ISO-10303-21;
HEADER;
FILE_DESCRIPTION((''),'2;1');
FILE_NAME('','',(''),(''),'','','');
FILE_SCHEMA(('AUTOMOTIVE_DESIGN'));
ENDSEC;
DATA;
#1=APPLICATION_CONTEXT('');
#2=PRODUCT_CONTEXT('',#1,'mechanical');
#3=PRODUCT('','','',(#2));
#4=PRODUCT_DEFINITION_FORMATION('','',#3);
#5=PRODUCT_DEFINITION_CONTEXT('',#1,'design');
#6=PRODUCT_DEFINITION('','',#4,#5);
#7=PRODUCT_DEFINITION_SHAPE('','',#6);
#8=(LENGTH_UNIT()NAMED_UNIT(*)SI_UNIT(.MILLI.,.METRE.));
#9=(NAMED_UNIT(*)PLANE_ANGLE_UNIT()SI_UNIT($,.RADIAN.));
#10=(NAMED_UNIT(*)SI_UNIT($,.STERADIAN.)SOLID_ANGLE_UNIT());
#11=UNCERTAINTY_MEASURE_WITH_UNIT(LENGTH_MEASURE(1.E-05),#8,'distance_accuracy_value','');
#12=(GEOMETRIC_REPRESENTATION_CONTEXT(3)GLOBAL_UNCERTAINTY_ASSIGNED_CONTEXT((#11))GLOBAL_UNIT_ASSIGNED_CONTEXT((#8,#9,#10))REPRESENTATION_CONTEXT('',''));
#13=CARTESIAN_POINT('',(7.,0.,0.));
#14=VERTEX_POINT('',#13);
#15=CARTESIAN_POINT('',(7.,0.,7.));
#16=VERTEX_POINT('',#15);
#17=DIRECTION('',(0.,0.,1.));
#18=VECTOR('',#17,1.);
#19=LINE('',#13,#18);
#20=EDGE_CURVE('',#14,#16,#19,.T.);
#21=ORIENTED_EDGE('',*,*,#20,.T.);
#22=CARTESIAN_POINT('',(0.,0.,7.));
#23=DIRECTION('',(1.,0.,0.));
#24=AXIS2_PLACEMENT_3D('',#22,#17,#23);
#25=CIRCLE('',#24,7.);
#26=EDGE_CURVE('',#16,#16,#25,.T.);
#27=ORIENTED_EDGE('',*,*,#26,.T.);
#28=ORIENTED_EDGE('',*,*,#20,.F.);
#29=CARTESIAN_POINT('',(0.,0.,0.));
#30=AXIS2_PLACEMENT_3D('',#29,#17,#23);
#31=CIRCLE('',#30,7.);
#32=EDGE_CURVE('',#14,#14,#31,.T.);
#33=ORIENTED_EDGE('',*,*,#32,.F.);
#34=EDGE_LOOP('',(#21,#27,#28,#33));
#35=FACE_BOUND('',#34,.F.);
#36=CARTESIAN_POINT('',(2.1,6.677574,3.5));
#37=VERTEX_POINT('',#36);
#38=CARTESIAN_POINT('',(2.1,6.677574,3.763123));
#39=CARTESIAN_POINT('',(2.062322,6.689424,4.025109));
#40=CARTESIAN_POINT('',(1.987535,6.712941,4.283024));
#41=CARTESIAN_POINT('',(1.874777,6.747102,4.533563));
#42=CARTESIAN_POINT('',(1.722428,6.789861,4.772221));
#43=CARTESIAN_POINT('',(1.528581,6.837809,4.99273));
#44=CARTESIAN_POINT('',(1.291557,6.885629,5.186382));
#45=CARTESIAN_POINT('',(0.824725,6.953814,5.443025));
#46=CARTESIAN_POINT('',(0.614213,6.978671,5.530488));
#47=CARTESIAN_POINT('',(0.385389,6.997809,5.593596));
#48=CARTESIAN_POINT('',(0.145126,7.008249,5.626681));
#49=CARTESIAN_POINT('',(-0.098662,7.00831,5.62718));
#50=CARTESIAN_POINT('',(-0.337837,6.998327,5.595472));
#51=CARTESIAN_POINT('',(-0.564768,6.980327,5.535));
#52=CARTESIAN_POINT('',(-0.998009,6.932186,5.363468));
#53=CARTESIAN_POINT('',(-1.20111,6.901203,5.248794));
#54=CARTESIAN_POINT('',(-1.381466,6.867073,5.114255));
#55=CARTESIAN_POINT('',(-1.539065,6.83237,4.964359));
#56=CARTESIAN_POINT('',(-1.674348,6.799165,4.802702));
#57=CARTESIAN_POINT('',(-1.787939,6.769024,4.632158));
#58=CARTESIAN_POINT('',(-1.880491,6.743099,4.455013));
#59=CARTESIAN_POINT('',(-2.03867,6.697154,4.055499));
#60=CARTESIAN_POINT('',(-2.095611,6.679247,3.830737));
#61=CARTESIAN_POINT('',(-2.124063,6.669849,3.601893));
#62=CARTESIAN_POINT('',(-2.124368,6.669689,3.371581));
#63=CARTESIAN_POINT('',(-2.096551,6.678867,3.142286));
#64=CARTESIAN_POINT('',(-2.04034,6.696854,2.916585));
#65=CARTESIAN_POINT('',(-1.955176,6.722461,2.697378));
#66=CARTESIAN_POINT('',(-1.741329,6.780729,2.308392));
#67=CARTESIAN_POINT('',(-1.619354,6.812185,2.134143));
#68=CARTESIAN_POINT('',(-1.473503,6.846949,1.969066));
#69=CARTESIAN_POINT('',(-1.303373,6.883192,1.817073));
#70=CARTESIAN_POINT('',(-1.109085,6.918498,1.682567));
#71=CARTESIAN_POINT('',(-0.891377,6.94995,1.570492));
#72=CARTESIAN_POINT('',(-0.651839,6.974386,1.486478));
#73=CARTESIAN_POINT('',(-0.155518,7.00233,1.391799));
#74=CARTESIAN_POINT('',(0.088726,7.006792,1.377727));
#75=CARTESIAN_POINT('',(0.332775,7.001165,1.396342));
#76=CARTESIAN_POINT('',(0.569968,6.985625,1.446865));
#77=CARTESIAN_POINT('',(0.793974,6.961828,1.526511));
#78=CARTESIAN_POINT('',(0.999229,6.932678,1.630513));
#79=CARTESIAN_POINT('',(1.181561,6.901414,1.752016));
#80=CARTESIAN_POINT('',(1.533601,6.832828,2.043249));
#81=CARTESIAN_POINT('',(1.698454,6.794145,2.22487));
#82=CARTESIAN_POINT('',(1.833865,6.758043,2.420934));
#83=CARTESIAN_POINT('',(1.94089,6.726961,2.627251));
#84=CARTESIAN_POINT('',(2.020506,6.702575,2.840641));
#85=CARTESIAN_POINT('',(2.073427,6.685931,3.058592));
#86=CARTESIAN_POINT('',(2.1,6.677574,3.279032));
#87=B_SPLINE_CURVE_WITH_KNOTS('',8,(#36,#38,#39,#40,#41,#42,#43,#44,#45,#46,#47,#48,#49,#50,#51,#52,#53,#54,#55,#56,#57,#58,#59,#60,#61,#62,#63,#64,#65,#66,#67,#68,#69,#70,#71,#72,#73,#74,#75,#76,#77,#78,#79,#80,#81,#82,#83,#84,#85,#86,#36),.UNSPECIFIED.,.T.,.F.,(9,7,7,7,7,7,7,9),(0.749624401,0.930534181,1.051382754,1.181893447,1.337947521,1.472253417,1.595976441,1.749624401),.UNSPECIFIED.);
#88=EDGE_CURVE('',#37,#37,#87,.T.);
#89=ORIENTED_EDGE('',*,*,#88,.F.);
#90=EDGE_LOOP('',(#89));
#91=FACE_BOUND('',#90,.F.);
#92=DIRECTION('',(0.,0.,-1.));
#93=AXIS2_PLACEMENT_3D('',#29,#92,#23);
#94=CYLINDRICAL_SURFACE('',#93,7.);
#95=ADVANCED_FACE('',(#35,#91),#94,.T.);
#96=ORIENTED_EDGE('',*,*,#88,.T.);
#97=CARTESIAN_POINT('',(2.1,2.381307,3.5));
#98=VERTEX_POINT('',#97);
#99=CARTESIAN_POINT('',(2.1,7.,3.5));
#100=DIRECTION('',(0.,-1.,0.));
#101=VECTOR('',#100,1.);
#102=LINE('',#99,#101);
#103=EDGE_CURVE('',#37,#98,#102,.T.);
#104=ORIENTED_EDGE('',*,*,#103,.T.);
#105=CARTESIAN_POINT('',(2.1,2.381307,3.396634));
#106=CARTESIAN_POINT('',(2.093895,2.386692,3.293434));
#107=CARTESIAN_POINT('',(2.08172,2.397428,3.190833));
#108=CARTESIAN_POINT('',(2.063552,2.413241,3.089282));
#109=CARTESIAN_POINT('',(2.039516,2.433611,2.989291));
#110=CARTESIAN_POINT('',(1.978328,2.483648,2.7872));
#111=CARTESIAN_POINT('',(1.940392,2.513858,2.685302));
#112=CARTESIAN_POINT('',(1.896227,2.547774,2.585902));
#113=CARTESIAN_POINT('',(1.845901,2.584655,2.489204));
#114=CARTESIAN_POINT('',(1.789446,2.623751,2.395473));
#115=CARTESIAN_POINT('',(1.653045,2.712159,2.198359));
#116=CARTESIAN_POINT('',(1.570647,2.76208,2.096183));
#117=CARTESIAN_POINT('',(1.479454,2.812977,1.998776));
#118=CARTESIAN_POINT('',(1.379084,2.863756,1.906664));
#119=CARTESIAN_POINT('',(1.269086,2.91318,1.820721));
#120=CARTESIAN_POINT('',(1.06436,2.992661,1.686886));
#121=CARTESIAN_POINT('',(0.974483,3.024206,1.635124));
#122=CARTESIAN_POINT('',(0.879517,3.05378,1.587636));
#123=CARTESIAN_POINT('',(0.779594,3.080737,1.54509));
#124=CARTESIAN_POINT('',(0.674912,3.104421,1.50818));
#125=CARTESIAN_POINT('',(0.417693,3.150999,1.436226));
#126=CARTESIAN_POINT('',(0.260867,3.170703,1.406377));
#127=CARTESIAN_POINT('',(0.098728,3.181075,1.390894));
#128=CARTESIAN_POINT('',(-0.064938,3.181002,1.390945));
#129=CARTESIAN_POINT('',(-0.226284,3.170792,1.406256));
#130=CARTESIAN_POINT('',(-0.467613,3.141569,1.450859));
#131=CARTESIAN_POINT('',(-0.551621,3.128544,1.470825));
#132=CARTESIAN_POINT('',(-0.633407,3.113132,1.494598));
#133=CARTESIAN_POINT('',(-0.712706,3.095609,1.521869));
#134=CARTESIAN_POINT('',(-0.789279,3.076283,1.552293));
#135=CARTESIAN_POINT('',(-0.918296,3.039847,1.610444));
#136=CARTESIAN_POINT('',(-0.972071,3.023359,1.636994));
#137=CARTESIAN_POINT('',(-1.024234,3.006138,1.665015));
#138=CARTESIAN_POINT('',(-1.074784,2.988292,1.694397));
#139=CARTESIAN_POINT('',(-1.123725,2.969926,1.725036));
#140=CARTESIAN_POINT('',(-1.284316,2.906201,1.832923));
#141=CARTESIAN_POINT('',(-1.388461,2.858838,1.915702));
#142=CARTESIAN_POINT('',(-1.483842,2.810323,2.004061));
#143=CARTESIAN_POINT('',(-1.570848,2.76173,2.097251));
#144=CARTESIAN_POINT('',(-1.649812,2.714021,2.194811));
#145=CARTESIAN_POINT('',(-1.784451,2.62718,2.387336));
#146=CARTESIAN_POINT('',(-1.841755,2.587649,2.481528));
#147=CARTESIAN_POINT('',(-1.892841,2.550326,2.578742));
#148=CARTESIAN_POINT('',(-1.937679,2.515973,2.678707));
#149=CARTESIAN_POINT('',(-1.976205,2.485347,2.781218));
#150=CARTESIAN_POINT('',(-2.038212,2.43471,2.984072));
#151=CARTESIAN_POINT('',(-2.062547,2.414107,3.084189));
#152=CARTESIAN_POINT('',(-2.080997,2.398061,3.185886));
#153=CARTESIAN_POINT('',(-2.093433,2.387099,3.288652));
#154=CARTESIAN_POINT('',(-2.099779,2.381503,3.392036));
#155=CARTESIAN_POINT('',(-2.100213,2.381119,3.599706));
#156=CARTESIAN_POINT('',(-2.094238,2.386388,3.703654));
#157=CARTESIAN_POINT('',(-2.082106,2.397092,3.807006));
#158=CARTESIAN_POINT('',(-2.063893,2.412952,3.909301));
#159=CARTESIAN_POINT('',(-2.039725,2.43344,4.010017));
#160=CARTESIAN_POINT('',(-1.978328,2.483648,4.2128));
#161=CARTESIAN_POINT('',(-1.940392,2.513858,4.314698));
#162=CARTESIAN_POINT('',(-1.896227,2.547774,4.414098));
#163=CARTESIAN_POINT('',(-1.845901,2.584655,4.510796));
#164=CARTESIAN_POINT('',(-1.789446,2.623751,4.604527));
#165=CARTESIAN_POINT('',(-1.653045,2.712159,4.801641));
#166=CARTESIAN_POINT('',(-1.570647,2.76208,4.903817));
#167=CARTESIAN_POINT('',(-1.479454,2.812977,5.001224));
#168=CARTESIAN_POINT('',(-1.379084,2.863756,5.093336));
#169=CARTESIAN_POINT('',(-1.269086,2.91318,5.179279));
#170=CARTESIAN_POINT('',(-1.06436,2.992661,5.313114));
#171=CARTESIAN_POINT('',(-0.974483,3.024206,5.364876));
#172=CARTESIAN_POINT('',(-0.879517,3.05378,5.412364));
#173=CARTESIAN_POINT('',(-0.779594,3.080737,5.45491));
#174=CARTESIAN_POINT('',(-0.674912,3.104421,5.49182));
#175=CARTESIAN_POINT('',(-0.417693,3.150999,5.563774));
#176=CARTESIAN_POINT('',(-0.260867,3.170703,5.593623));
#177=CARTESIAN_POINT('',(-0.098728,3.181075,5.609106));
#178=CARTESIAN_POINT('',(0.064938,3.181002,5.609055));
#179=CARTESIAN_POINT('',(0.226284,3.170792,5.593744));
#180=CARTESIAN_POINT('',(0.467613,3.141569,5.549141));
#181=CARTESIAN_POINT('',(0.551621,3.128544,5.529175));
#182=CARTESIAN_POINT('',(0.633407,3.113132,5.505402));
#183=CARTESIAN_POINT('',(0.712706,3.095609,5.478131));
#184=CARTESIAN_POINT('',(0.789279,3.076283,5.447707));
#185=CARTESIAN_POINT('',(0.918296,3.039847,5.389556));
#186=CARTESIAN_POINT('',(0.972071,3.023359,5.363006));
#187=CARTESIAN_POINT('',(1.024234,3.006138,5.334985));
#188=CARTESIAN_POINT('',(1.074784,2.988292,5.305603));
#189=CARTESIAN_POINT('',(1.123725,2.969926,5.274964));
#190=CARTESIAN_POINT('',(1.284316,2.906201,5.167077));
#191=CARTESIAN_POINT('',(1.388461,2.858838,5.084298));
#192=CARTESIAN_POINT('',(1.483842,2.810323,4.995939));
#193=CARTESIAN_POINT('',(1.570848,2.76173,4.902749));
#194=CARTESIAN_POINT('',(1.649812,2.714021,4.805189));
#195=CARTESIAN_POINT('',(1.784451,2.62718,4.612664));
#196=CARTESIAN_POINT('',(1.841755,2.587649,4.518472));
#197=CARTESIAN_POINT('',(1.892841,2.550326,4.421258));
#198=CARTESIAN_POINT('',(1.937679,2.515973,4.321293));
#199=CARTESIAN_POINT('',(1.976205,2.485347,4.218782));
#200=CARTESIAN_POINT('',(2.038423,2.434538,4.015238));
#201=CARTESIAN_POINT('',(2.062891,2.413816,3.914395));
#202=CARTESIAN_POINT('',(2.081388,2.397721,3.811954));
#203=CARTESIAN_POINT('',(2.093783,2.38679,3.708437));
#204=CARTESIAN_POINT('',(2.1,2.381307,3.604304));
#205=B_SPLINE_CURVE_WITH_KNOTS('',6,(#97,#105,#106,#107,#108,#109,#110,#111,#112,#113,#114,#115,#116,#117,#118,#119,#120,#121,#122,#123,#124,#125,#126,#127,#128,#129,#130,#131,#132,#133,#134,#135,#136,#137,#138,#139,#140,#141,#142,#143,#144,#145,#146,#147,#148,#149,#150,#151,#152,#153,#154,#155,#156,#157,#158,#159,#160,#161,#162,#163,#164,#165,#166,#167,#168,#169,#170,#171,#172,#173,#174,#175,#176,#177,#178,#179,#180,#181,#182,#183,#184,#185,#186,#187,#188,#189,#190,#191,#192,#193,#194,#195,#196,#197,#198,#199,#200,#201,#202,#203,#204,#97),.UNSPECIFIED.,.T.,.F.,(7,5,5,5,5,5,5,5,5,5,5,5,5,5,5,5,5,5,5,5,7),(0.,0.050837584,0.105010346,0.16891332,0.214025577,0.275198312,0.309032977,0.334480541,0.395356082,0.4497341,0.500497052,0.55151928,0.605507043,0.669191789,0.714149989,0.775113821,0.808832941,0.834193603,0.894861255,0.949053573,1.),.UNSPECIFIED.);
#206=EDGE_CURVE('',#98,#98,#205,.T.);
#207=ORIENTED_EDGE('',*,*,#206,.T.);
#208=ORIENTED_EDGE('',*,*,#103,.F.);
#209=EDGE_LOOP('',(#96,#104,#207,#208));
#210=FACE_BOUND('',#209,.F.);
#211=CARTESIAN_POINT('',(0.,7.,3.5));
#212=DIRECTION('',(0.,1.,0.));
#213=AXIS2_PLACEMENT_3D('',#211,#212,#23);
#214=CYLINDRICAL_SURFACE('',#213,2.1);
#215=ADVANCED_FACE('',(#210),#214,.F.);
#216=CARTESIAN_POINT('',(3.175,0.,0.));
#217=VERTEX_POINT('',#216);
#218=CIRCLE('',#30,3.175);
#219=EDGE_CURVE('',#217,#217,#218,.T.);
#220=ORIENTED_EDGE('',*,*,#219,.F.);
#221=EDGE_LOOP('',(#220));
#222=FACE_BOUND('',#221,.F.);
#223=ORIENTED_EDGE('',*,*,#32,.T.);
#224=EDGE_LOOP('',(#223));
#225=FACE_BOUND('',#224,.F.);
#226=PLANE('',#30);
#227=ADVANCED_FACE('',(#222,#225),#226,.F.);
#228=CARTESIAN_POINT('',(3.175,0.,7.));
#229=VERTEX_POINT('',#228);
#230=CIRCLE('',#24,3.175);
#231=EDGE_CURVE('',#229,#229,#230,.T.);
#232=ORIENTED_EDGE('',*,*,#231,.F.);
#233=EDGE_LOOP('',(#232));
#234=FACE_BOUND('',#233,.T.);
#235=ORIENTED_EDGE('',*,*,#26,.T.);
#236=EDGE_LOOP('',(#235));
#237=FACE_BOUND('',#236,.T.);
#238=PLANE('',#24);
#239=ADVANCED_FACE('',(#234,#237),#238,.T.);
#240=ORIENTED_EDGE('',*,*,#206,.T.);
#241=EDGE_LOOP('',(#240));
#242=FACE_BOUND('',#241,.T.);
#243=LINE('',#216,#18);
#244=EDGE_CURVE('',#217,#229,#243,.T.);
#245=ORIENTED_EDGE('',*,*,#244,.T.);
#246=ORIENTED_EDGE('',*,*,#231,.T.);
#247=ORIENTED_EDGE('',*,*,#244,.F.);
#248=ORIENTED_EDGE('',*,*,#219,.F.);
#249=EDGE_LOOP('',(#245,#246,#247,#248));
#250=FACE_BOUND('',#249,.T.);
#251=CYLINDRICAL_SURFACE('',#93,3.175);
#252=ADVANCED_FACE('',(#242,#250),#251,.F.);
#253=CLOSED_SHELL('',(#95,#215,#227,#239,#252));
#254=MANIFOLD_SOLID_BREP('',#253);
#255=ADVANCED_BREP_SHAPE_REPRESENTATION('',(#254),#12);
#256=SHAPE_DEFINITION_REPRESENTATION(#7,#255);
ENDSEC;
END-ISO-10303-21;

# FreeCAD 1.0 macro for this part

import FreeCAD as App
import Part
import Sketcher
from FreeCAD import Vector

doc = App.newDocument("Part")
body = doc.addObject("PartDesign::Body", "Body")

sketch1 = doc.addObject("Sketcher::SketchObject", "Sketch")
body.addObject(sketch1)
sketch1.AttachmentSupport = (doc.XY_Plane, [""])
sketch1.MapMode = "FlatFace"
sketch1.addGeometry(Part.Circle(Vector(0, 0, 0), Vector(0, 0, 1), 7), False)
sketch1.addGeometry(Part.Circle(Vector(0, 0, 0), Vector(0, 0, 1), 3.2), False)
sketch1.addConstraint(Sketcher.Constraint("Coincident", 0, 3, -1, 1))
sketch1.addConstraint(Sketcher.Constraint("Coincident", 1, 3, -1, 1))
sketch1.addConstraint(Sketcher.Constraint("Diameter", 0, 14.0))
sketch1.addConstraint(Sketcher.Constraint("Diameter", 1, 6.35))
pad1 = doc.addObject("PartDesign::Pad", "Pad")
body.addObject(pad1)
pad1.Profile = sketch1
pad1.Length = 7

sketch2 = doc.addObject("Sketcher::SketchObject", "Sketch001")
body.addObject(sketch2)
sketch2.AttachmentSupport = (doc.XZ_Plane, [""])
sketch2.MapMode = "FlatFace"
sketch2.AttachmentOffset = App.Placement(Vector(0, 0, -7), App.Rotation())
sketch2.addGeometry(Part.Circle(Vector(0, 3.5, 0), Vector(0, 0, 1), 2.1), False)
sketch2.addConstraint(Sketcher.Constraint("PointOnObject", 0, 3, -2))
sketch2.addConstraint(Sketcher.Constraint("Diameter", 0, 4.2))
sketch2.addConstraint(Sketcher.Constraint("DistanceY", -1, 1, 0, 3, 3.5))
pocket1 = doc.addObject("PartDesign::Pocket", "Pocket")
body.addObject(pocket1)
pocket1.Profile = sketch2
pocket1.Type = "UpToFirst"
pocket1.Reversed = True

doc.recompute()
